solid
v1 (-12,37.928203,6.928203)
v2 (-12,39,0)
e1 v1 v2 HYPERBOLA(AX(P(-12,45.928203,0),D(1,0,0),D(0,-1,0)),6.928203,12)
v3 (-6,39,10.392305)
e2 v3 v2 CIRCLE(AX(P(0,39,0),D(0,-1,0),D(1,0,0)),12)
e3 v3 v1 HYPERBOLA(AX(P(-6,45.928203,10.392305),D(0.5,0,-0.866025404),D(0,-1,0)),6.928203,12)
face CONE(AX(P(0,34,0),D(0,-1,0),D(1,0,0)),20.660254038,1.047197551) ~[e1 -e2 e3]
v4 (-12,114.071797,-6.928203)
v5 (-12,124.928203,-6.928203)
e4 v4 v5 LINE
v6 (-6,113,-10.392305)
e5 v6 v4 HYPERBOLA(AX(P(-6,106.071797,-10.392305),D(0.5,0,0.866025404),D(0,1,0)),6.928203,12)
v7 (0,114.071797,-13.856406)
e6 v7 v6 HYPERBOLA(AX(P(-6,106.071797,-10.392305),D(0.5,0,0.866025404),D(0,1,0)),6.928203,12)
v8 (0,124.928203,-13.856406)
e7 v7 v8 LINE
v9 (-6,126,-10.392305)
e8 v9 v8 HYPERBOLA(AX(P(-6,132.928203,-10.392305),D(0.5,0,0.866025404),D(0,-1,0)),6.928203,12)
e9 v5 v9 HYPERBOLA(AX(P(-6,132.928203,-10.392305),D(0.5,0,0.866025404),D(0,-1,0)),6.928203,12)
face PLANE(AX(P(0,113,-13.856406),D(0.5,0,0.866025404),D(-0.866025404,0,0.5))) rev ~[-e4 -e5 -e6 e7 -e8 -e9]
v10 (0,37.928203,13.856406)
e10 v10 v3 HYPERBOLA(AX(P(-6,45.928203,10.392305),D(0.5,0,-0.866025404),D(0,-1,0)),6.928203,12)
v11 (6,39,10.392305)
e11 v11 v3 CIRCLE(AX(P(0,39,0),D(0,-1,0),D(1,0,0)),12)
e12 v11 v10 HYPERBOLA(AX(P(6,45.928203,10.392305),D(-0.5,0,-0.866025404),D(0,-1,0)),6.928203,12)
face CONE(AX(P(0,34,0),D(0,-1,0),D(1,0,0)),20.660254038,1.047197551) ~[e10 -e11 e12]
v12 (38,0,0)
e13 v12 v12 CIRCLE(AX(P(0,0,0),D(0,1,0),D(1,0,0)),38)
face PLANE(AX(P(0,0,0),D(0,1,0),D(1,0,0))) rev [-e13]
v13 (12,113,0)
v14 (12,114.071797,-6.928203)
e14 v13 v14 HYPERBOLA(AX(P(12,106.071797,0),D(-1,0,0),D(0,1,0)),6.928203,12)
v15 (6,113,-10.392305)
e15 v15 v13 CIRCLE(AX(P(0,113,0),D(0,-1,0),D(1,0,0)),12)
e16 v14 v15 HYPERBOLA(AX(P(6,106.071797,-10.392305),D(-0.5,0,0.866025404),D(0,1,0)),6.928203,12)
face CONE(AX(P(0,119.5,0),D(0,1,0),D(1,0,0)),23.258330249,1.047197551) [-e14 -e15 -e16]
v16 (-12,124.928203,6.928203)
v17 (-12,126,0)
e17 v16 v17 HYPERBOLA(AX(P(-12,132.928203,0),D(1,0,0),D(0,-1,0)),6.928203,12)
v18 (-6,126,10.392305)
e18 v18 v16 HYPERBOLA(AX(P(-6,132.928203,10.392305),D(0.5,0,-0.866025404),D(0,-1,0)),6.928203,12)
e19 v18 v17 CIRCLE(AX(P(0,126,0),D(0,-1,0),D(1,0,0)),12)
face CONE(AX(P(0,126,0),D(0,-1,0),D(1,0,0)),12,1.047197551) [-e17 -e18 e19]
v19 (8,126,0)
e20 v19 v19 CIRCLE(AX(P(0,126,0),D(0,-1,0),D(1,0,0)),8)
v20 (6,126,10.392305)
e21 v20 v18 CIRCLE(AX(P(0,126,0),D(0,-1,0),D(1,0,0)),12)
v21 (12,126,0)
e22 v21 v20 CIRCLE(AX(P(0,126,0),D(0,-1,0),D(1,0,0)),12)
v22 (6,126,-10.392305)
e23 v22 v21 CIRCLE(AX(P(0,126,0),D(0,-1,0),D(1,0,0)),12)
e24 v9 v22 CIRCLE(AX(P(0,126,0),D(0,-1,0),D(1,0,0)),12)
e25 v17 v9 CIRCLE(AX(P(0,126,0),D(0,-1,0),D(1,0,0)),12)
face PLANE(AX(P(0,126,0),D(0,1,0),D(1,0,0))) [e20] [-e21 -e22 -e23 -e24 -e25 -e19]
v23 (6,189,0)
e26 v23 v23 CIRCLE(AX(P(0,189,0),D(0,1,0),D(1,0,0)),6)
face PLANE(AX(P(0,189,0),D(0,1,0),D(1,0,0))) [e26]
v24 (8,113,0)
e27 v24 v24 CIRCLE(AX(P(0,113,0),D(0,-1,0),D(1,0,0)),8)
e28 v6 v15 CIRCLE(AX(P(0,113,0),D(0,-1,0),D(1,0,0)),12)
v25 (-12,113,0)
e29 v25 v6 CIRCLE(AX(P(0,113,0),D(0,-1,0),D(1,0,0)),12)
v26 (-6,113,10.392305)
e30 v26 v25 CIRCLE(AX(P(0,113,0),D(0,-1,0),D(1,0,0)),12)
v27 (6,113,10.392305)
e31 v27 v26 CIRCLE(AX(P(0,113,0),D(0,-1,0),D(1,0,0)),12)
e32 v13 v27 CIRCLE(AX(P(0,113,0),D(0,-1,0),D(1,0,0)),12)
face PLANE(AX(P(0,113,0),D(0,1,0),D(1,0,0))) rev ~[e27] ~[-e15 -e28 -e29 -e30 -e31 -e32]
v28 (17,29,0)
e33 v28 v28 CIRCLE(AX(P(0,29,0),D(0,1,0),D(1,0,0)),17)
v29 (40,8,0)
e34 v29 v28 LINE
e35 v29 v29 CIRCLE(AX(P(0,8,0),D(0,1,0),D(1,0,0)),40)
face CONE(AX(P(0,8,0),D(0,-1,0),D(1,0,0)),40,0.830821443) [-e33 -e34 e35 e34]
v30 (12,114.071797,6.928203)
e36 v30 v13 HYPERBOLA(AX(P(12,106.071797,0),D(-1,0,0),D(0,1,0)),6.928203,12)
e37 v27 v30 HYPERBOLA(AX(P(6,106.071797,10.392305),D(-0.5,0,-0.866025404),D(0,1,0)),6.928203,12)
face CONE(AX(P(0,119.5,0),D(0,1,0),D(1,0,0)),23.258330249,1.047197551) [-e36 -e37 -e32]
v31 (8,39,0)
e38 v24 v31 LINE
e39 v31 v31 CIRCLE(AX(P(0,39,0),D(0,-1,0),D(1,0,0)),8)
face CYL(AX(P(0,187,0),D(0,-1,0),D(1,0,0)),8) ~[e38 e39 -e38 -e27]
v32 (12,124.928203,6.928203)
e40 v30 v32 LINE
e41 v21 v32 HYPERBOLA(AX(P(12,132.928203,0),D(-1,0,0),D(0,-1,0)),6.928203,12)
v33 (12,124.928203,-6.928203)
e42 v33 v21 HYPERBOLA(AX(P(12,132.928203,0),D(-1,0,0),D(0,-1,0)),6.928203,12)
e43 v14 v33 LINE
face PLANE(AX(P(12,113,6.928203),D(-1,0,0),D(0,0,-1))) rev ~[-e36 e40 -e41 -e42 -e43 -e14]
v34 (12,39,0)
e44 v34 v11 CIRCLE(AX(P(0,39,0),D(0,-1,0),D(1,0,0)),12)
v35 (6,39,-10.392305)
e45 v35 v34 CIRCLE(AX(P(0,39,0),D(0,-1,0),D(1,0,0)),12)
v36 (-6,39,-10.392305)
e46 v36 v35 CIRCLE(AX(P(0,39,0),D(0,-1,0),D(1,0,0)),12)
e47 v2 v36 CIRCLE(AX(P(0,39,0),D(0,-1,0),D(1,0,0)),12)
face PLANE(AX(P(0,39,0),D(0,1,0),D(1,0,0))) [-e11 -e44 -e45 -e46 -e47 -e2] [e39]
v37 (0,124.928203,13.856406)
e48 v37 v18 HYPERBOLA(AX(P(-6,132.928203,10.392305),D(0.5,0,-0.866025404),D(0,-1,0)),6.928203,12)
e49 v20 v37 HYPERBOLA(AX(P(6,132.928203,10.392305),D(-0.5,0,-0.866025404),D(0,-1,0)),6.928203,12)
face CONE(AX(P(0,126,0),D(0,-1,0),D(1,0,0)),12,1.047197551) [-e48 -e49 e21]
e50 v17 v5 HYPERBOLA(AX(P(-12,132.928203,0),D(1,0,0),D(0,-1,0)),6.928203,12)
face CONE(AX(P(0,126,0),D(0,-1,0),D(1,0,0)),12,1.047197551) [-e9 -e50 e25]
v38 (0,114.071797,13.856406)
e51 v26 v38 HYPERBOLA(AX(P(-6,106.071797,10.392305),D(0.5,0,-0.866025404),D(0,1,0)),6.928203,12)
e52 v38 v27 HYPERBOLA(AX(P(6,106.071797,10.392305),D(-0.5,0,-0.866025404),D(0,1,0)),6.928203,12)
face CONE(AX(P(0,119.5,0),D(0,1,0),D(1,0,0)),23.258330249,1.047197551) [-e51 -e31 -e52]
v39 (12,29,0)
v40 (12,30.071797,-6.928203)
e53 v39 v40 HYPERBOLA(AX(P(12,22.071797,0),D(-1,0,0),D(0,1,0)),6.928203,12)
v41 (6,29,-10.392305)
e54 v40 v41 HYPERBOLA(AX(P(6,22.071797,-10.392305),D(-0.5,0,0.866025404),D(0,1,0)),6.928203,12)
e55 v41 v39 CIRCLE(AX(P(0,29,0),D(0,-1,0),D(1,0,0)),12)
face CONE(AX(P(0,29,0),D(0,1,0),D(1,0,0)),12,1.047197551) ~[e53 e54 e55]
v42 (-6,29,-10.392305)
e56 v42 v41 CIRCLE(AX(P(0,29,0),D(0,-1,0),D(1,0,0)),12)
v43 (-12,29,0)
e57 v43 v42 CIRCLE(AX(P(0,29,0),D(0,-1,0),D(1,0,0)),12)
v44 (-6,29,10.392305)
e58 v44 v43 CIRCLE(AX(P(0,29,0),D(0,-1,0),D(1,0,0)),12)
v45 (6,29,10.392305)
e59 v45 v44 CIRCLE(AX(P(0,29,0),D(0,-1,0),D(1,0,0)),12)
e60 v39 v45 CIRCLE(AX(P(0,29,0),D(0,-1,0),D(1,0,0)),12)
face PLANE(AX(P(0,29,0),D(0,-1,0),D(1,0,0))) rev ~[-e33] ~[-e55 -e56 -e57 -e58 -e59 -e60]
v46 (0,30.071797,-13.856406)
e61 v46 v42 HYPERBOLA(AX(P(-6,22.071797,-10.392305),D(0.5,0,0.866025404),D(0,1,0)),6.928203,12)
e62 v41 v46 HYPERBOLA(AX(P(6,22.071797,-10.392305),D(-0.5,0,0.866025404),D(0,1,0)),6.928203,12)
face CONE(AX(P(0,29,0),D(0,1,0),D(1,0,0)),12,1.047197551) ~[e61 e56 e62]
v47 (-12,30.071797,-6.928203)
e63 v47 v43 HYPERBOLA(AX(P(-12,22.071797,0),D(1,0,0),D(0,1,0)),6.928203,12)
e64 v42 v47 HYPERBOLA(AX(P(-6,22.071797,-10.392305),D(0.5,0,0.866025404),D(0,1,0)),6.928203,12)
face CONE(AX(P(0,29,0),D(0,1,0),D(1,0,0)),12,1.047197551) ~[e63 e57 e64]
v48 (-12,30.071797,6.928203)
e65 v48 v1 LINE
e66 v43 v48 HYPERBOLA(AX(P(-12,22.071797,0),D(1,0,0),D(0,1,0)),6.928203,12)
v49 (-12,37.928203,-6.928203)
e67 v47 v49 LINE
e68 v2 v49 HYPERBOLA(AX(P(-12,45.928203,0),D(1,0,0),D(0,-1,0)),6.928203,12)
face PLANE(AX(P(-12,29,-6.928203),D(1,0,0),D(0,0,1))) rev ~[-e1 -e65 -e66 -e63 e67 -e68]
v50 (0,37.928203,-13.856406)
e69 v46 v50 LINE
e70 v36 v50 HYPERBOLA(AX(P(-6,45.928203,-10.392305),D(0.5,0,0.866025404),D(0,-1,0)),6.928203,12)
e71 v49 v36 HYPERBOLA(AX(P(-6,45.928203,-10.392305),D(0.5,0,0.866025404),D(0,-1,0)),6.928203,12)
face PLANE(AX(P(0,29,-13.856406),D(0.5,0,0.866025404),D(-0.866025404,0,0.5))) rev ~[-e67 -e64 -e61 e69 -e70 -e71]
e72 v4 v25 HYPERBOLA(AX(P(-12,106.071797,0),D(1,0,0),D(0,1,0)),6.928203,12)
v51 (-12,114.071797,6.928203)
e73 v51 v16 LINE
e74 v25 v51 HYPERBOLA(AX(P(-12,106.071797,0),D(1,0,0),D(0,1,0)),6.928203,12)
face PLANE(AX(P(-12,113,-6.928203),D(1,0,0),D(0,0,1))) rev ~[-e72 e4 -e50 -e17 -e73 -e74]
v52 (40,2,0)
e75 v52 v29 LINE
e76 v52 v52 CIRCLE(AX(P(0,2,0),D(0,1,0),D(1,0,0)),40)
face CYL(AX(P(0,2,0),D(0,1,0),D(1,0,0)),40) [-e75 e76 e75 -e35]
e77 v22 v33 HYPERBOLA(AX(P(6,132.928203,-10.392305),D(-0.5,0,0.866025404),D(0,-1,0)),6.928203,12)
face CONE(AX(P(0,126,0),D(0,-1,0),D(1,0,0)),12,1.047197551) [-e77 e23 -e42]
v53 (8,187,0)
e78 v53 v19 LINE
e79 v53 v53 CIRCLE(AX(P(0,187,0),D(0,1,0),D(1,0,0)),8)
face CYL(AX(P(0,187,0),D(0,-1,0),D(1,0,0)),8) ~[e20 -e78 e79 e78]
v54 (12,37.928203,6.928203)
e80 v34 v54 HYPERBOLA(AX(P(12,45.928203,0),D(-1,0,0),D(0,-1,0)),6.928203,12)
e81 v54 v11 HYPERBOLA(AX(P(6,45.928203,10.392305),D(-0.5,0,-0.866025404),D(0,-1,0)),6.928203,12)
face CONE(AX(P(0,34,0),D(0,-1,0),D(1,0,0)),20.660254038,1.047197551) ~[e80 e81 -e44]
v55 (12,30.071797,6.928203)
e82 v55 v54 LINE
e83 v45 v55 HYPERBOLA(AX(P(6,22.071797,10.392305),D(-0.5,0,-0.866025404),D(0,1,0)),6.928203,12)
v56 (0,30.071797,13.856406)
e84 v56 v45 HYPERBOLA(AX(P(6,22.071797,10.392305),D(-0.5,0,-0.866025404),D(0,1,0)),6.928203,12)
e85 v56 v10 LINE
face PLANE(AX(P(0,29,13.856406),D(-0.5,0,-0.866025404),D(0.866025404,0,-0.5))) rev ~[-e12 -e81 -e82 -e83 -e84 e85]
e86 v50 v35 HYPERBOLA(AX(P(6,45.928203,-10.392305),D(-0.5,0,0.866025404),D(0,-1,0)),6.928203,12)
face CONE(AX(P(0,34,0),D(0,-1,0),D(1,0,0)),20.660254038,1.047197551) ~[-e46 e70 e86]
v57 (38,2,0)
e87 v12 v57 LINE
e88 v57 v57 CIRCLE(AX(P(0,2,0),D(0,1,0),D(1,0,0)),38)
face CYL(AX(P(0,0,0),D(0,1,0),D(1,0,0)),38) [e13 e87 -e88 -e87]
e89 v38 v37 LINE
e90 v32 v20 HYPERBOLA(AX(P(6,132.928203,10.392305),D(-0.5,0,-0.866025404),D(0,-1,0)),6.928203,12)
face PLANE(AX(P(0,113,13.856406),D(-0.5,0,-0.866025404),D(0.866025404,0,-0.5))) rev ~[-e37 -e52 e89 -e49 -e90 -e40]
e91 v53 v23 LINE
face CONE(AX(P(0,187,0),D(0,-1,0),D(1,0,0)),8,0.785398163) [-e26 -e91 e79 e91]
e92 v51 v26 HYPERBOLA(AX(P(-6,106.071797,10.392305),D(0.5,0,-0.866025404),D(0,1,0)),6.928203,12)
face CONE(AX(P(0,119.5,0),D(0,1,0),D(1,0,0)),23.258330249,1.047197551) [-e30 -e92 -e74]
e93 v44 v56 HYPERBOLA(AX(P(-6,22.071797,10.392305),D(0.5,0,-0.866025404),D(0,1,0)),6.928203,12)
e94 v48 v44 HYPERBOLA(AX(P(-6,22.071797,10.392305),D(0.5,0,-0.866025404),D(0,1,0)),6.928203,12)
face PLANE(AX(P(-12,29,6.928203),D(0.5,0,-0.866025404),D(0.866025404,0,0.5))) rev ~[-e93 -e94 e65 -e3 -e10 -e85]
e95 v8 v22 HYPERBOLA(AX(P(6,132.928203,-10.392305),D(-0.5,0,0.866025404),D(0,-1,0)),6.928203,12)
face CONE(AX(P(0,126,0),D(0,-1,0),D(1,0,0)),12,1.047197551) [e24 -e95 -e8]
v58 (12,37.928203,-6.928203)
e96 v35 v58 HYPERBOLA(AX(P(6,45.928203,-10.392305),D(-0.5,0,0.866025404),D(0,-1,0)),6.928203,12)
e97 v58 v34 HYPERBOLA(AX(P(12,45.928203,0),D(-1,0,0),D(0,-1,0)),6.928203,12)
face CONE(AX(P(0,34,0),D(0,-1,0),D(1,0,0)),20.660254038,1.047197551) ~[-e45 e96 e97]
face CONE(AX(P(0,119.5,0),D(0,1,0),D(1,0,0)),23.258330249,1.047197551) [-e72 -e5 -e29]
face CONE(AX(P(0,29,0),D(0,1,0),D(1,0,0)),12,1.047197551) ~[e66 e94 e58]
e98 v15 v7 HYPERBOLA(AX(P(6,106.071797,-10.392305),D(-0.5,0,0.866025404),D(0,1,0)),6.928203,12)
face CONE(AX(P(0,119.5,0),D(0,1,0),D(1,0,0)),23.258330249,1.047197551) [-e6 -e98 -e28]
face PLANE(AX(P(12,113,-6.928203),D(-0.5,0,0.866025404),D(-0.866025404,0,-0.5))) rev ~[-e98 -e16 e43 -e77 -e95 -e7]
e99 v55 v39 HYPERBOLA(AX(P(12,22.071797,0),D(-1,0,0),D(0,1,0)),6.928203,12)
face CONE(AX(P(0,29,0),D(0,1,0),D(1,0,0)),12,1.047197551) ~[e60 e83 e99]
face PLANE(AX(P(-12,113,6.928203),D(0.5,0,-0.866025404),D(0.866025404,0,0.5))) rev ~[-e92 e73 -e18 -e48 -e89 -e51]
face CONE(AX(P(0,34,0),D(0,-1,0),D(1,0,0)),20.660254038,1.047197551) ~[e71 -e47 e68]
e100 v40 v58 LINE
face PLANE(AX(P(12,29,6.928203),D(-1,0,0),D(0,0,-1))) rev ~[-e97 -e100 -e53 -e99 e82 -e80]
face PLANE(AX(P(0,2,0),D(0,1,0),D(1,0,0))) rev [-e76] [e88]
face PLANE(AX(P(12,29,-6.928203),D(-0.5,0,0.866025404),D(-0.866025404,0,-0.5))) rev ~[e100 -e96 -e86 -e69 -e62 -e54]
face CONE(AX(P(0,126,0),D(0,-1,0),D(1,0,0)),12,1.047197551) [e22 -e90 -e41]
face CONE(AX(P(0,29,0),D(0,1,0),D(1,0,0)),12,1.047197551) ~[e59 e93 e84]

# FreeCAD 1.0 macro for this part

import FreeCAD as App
import Part
import Sketcher
Q = App.Units.Quantity


def add_polygon(sketch, points):
    """Adds a closed chain of lines whose ends are joined by coincident constraints."""
    first, n = sketch.GeometryCount, len(points)
    for a, b in zip(points, points[1:] + points[:1]):
        sketch.addGeometry(Part.LineSegment(App.Vector(*a, 0), App.Vector(*b, 0)), False)
    for i in range(n):
        sketch.addConstraint(Sketcher.Constraint("Coincident", first + i, 2, first + (i + 1) % n, 1))

doc = App.newDocument("Part")
body = doc.addObject("PartDesign::Body", "Body")

sketch1 = body.newObject("Sketcher::SketchObject", "Sketch")
sketch1.AttachmentSupport = (doc.getObject("XY_Plane"), [""])
sketch1.MapMode = "FlatFace"
add_polygon(sketch1, [(-38, 0), (0, 0), (0, 189), (-6, 189), (-8, 187), (-8, 29), (-17, 29), (-40, 8), (-40, 2), (-38, 2)])
sketch1.addConstraint([
    Sketcher.Constraint("Horizontal", 0),
    Sketcher.Constraint("Vertical", 1),
    Sketcher.Constraint("Horizontal", 2),
    Sketcher.Constraint("Vertical", 4),
    Sketcher.Constraint("Horizontal", 5),
    Sketcher.Constraint("Vertical", 7),
    Sketcher.Constraint("Horizontal", 8),
    Sketcher.Constraint("Vertical", 9),
    Sketcher.Constraint("Coincident", 0, 2, -1, 1),
    Sketcher.Constraint("Equal", 2, 7),
    Sketcher.Constraint("Equal", 8, 9),
    Sketcher.Constraint("DistanceX", 0, 1, 0, 2, Q("38 mm")),
    Sketcher.Constraint("DistanceX", 2, 2, 2, 1, Q("6 mm")),
    Sketcher.Constraint("DistanceX", 5, 2, 5, 1, Q("9 mm")),
    Sketcher.Constraint("DistanceX", 8, 1, 8, 2, Q("2 mm")),
    Sketcher.Constraint("DistanceY", 1, 1, 1, 2, Q("189 mm")),
    Sketcher.Constraint("DistanceY", 4, 2, 4, 1, Q("158 mm")),
    Sketcher.Constraint("Angle", 3, Q("-135 deg")),
    Sketcher.Constraint("DistanceX", 3, 2, -1, 1, Q("8 mm")),
])
revolution = body.newObject("PartDesign::Revolution", "Revolution")
revolution.Profile = sketch1
revolution.ReferenceAxis = (sketch1, ["V_Axis"])
revolution.Angle = 360

sketch2 = body.newObject("Sketcher::SketchObject", "Sketch001")
sketch2.AttachmentSupport = (doc.getObject("XZ_Plane"), [""])
sketch2.MapMode = "FlatFace"
sketch2.AttachmentOffset = App.Placement(App.Vector(0, 0, -29), App.Rotation())
add_polygon(sketch2, [(0, -13.856406), (-12, -6.928203), (-12, 6.928203), (0, 13.856406), (12, 6.928203), (12, -6.928203)])
sketch2.addConstraint([
    Sketcher.Constraint("Vertical", 1),
    Sketcher.Constraint("Vertical", 4),
    Sketcher.Constraint("Symmetric", 0, 2, 3, 2, -1, 1),
    Sketcher.Constraint("Symmetric", 2, 2, 5, 2, -1, 1),
    Sketcher.Constraint("PointOnObject", 2, 2, -2),
    Sketcher.Constraint("Parallel", 2, 5),
    Sketcher.Constraint("Horizontal", 1, 2, 3, 2),
    Sketcher.Constraint("Angle", 0, Q("150 deg")),
    Sketcher.Constraint("DistanceX", 0, 2, -1, 1, Q("12 mm")),
    Sketcher.Constraint("DistanceY", 1, 1, 1, 2, Q("13.856406 mm")),
])
pad1 = body.newObject("PartDesign::Pad", "Pad")
pad1.Profile = sketch2
pad1.Length = 10
pad1.Reversed = True

sketch3 = body.newObject("Sketcher::SketchObject", "Sketch002")
sketch3.AttachmentSupport = (doc.getObject("XZ_Plane"), [""])
sketch3.MapMode = "FlatFace"
sketch3.AttachmentOffset = App.Placement(App.Vector(0, 0, -113), App.Rotation())
add_polygon(sketch3, [(12, -6.928203), (0, -13.856406), (-12, -6.928203), (-12, 6.928203), (0, 13.856406), (12, 6.928203)])
sketch3.addConstraint([
    Sketcher.Constraint("Vertical", 2),
    Sketcher.Constraint("Vertical", 5),
    Sketcher.Constraint("Symmetric", 0, 2, 3, 2, -1, 1),
    Sketcher.Constraint("Symmetric", 1, 2, 4, 2, -1, 1),
    Sketcher.Constraint("PointOnObject", 0, 2, -2),
    Sketcher.Constraint("Parallel", 0, 3),
    Sketcher.Constraint("Horizontal", 2, 2, 4, 2),
    Sketcher.Constraint("Angle", 0, Q("-150 deg")),
    Sketcher.Constraint("DistanceX", 1, 2, -1, 1, Q("12 mm")),
    Sketcher.Constraint("DistanceY", 2, 1, 2, 2, Q("13.856406 mm")),
])
pad2 = body.newObject("PartDesign::Pad", "Pad001")
pad2.Profile = sketch3
pad2.Length = 13
pad2.Reversed = True

sketch4 = body.newObject("Sketcher::SketchObject", "Sketch003")
sketch4.AttachmentSupport = (doc.getObject("XY_Plane"), [""])
sketch4.MapMode = "FlatFace"
add_polygon(sketch4, [(-12, 126), (-23.25833, 126), (-23.25833, 119.5)])
add_polygon(sketch4, [(-23.25833, 119.5), (-23.25833, 113), (-12, 113)])
add_polygon(sketch4, [(-20.660254, 39), (-20.660254, 34), (-12, 39)])
add_polygon(sketch4, [(-20.660254, 34), (-20.660254, 29), (-12, 29)])
sketch4.addConstraint([
    Sketcher.Constraint("Horizontal", 0),
    Sketcher.Constraint("Vertical", 1),
    Sketcher.Constraint("Vertical", 3),
    Sketcher.Constraint("Horizontal", 4),
    Sketcher.Constraint("Vertical", 6),
    Sketcher.Constraint("Horizontal", 8),
    Sketcher.Constraint("Vertical", 9),
    Sketcher.Constraint("Horizontal", 10),
    Sketcher.Constraint("Coincident", 5, 2, 1, 2),
    Sketcher.Constraint("Coincident", 11, 2, 6, 2),
    Sketcher.Constraint("Parallel", 2, 7),
    Sketcher.Constraint("Parallel", 5, 11),
    Sketcher.Constraint("Vertical", 2, 2, 4, 2),
    Sketcher.Constraint("Vertical", 4, 2, 7, 2),
    Sketcher.Constraint("Vertical", 7, 2, 10, 2),
    Sketcher.Constraint("Equal", 1, 3),
    Sketcher.Constraint("DistanceY", 6, 2, 6, 1, Q("5 mm")),
    Sketcher.Constraint("Angle", 2, Q("30 deg")),
    Sketcher.Constraint("Distance", 2, Q("13 mm")),
    Sketcher.Constraint("DistanceY", -1, 1, 0, 2, Q("126 mm")),
    Sketcher.Constraint("DistanceX", 2, 2, -1, 1, Q("12 mm")),
    Sketcher.Constraint("DistanceY", -1, 1, 6, 2, Q("34 mm")),
])
groove = body.newObject("PartDesign::Groove", "Groove")
groove.Profile = sketch4
groove.ReferenceAxis = (sketch4, ["V_Axis"])
groove.Angle = 360

doc.recompute()
